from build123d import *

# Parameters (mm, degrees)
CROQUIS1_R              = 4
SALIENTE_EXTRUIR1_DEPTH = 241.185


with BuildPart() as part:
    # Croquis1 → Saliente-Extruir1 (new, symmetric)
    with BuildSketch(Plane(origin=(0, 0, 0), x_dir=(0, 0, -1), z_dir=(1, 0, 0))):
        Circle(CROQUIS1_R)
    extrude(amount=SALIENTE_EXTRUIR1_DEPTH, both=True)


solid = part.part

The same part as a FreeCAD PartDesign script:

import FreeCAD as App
import Part
import Sketcher

V = App.Vector

doc = App.newDocument("Part")
body = doc.addObject("PartDesign::Body", "Body")

sketch1 = doc.addObject("Sketcher::SketchObject", "Sketch")
body.addObject(sketch1)
sketch1.AttachmentSupport = (doc.YZ_Plane, [""])
sketch1.MapMode = "FlatFace"
sketch1.addGeometry(Part.Circle(V(0, 0, 0), V(0, 0, 1), 4), False)
sketch1.addConstraint([
    Sketcher.Constraint("Coincident", 0, 3, -1, 1),
    Sketcher.Constraint("Diameter", 0, 8.0),
])
pad1 = doc.addObject("PartDesign::Pad", "Pad")
body.addObject(pad1)
pad1.Profile = sketch1
pad1.Length = 482.37
pad1.Midplane = True

doc.recompute()
